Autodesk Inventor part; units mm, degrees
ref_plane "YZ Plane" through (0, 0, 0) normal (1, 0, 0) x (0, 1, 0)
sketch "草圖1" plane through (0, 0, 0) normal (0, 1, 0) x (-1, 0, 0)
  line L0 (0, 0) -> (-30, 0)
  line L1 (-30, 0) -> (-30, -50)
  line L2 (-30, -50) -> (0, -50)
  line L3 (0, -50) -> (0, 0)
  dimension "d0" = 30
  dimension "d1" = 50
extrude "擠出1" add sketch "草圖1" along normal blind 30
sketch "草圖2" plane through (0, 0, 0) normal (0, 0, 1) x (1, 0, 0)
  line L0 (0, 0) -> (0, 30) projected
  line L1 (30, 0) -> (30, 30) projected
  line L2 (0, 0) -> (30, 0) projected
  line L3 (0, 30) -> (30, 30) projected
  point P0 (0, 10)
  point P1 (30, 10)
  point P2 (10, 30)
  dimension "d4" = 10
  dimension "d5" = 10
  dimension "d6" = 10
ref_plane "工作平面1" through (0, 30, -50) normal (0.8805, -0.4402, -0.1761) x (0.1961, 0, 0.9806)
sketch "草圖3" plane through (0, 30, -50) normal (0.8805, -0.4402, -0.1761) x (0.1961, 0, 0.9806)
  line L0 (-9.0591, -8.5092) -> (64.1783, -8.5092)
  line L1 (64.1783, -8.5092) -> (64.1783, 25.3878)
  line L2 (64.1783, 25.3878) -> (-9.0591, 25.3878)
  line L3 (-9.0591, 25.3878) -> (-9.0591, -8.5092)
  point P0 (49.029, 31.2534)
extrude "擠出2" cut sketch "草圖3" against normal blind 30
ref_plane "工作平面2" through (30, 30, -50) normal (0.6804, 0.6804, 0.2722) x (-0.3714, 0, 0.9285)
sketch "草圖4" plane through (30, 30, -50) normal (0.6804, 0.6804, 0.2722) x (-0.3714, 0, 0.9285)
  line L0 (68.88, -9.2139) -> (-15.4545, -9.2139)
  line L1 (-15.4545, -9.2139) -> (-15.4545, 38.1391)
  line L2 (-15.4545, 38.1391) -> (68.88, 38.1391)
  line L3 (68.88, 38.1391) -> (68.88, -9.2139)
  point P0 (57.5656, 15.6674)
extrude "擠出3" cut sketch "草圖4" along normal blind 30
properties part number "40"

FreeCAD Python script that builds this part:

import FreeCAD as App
import Part
import Sketcher

V = App.Vector

doc = App.newDocument("Part")
body = doc.addObject("PartDesign::Body", "Body")

# Sketch on XZ plane
sketch1 = body.newObject("Sketcher::SketchObject", "Sketch")
sketch1.AttachmentSupport = (doc.getObject("XZ_Plane"), [""])
sketch1.MapMode = "FlatFace"
sketch1.addGeometry([
    Part.LineSegment(V(0, -50, 0), V(0, 0, 0)),
    Part.LineSegment(V(0, 0, 0), V(30, 0, 0)),
    Part.LineSegment(V(30, 0, 0), V(30, -50, 0)),
    Part.LineSegment(V(30, -50, 0), V(0, -50, 0)),
], False)
sketch1.addConstraint([
    Sketcher.Constraint("Coincident", 0, 2, 1, 1),
    Sketcher.Constraint("Coincident", 1, 2, 2, 1),
    Sketcher.Constraint("Coincident", 2, 2, 3, 1),
    Sketcher.Constraint("Coincident", 3, 2, 0, 1),
    Sketcher.Constraint("Vertical", 0),
    Sketcher.Constraint("Horizontal", 1),
    Sketcher.Constraint("Vertical", 2),
    Sketcher.Constraint("Horizontal", 3),
    Sketcher.Constraint("Coincident", 0, 2, -1, 1),
    Sketcher.Constraint("DistanceX", 1, 1, 1, 2, 30.0),
    Sketcher.Constraint("DistanceY", 0, 1, 0, 2, 50.0),
])
pad1 = body.newObject("PartDesign::Pad", "Pad")
pad1.Profile = sketch1
pad1.Length = 30
pad1.Reversed = True

# Sketch on an angled plane
sketch2 = body.newObject("Sketcher::SketchObject", "Sketch001")
sketch2.Placement = App.Placement(V(0, 30, -50), App.Rotation(V(0.196112409, -0.000007751, 0.980581421), V(-0.431638739, -0.897907033, 0.086318944), V(0.880470285, -0.440185144, -0.176094057), "ZXY"))
sketch2.addGeometry([
    Part.LineSegment(V(-9.0591, 25.3878, 0), V(-9.0591, -8.5092, 0)),
    Part.LineSegment(V(-9.0591, -8.5092, 0), V(64.1783, -8.5092, 0)),
    Part.LineSegment(V(64.1783, -8.5092, 0), V(64.1783, 25.3878, 0)),
    Part.LineSegment(V(64.1783, 25.3878, 0), V(-9.0591, 25.3878, 0)),
], False)
sketch2.addConstraint([
    Sketcher.Constraint("Coincident", 0, 2, 1, 1),
    Sketcher.Constraint("Coincident", 1, 2, 2, 1),
    Sketcher.Constraint("Coincident", 2, 2, 3, 1),
    Sketcher.Constraint("Coincident", 3, 2, 0, 1),
    Sketcher.Constraint("Vertical", 0),
    Sketcher.Constraint("Horizontal", 1),
    Sketcher.Constraint("Vertical", 2),
    Sketcher.Constraint("Horizontal", 3),
    Sketcher.Constraint("DistanceY", 0, 2, 0, 1, 33.897),
    Sketcher.Constraint("DistanceX", 1, 1, 1, 2, 73.2374),
    Sketcher.Constraint("DistanceX", 0, 2, -1, 1, 9.059),
    Sketcher.Constraint("DistanceY", 0, 2, -1, 1, 8.5092),
])
pocket1 = body.newObject("PartDesign::Pocket", "Pocket")
pocket1.Profile = sketch2
pocket1.Length = 30

# Sketch on an angled plane
sketch3 = body.newObject("Sketcher::SketchObject", "Sketch002")
sketch3.Placement = App.Placement(V(30, 30, -50), App.Rotation(V(-0.371415947, -0.00002527, 0.928466582), V(0.631741491, -0.732834986, 0.252696597), V(0.680406409, 0.680406409, 0.272202564), "ZXY"))
sketch3.addGeometry([
    Part.LineSegment(V(-15.4545, -9.2139, 0), V(68.88, -9.2139, 0)),
    Part.LineSegment(V(68.88, -9.2139, 0), V(68.88, 38.1391, 0)),
    Part.LineSegment(V(68.88, 38.1391, 0), V(-15.4545, 38.1391, 0)),
    Part.LineSegment(V(-15.4545, 38.1391, 0), V(-15.4545, -9.2139, 0)),
], False)
sketch3.addConstraint([
    Sketcher.Constraint("Coincident", 0, 2, 1, 1),
    Sketcher.Constraint("Coincident", 1, 2, 2, 1),
    Sketcher.Constraint("Coincident", 2, 2, 3, 1),
    Sketcher.Constraint("Coincident", 3, 2, 0, 1),
    Sketcher.Constraint("Horizontal", 0),
    Sketcher.Constraint("Vertical", 1),
    Sketcher.Constraint("Horizontal", 2),
    Sketcher.Constraint("Vertical", 3),
    Sketcher.Constraint("DistanceY", 1, 1, 1, 2, 47.353),
    Sketcher.Constraint("DistanceX", -1, 1, 0, 2, 68.88),
    Sketcher.Constraint("DistanceX", 0, 1, 0, 2, 84.3345),
    Sketcher.Constraint("DistanceY", 0, 2, -1, 1, 9.214),
])
pocket2 = body.newObject("PartDesign::Pocket", "Pocket001")
pocket2.Profile = sketch3
pocket2.Length = 30
pocket2.Reversed = True

doc.recompute()
